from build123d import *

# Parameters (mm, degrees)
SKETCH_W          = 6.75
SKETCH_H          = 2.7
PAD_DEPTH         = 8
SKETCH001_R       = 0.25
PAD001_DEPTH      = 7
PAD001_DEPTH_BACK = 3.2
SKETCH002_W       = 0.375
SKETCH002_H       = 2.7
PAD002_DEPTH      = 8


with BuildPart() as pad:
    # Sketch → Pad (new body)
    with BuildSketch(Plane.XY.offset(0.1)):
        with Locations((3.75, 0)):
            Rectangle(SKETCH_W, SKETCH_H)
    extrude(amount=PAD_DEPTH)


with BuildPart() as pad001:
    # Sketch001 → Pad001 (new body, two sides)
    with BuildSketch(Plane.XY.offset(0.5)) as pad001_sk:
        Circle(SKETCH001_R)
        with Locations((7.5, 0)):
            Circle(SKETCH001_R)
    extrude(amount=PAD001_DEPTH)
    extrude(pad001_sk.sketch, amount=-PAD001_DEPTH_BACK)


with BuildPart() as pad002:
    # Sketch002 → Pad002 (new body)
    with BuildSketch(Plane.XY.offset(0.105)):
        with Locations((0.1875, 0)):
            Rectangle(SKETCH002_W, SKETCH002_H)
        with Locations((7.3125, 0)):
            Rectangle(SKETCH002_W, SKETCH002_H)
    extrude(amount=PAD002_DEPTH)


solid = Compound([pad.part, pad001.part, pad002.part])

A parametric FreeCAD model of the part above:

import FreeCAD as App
import Part
import Sketcher

doc = App.newDocument("Part")
params = doc.addObject("Spreadsheet::Sheet", "Params")
for row, (alias, value) in enumerate([
    ("sketch1_height", "2.7 mm"),
    ("sketch1_width", "6.75 mm"),
    ("pad1_length", "8 mm"),
    ("sketch2_diameter", "0.5 mm"),
    ("pad2_length", "7 mm"),
    ("pad2_length2", "3.2 mm"),
    ("sketch3_height", "2.7 mm"),
    ("pad3_length", "8 mm"),
], start=1):
    params.set(f"A{row}", alias)
    params.set(f"B{row}", "=" + value)
    params.setAlias(f"B{row}", alias)

body = doc.addObject("PartDesign::Body", "Body")

sketch1 = body.newObject("Sketcher::SketchObject", "Sketch")
sketch1.AttachmentSupport = (doc.getObject("XY_Plane"), [""])
sketch1.MapMode = "FlatFace"
sketch1.AttachmentOffset = App.Placement(App.Vector(0, 0, 0.1), App.Rotation())
sketch1.addGeometry([
    Part.LineSegment(App.Vector(0.4, 1.4, 0), App.Vector(0.4, -1.4, 0)),
    Part.LineSegment(App.Vector(0.4, -1.4, 0), App.Vector(7.1, -1.4, 0)),
    Part.LineSegment(App.Vector(7.1, -1.4, 0), App.Vector(7.1, 1.4, 0)),
    Part.LineSegment(App.Vector(7.1, 1.4, 0), App.Vector(0.4, 1.4, 0)),
], False)
sketch1.addConstraint([
    Sketcher.Constraint("Coincident", 0, 2, 1, 1),
    Sketcher.Constraint("Coincident", 1, 2, 2, 1),
    Sketcher.Constraint("Coincident", 2, 2, 3, 1),
    Sketcher.Constraint("Coincident", 3, 2, 0, 1),
    Sketcher.Constraint("Vertical", 0),
    Sketcher.Constraint("Horizontal", 1),
    Sketcher.Constraint("Vertical", 2),
    Sketcher.Constraint("Horizontal", 3),
    Sketcher.Constraint("DistanceY", 0, 2, 0, 1, 2.7),
    Sketcher.Constraint("DistanceX", 1, 1, 1, 2, 6.75),
    Sketcher.Constraint("DistanceY", 0, 2, -1, 1, 1.35),
    Sketcher.Constraint("DistanceX", -1, 1, 0, 2, 0.375),
])
sketch1.setExpression("Constraints[8]", "Params.sketch1_height")
sketch1.setExpression("Constraints[9]", "Params.sketch1_width")
pad1 = body.newObject("PartDesign::Pad", "Pad")
pad1.Profile = sketch1
pad1.setExpression("Length", "Params.pad1_length")
body2 = doc.addObject("PartDesign::Body", "Body001")
body2.AllowCompound = True

sketch2 = body2.newObject("Sketcher::SketchObject", "Sketch001")
sketch2.AttachmentSupport = (doc.getObject("XY_Plane001"), [""])
sketch2.MapMode = "FlatFace"
sketch2.AttachmentOffset = App.Placement(App.Vector(0, 0, 0.5), App.Rotation())
sketch2.addGeometry([
    Part.Circle(App.Vector(0, 0, 0), App.Vector(0, 0, 1), 0.25),
    Part.Circle(App.Vector(7.5, 0, 0), App.Vector(0, 0, 1), 0.25),
], False)
sketch2.addConstraint([
    Sketcher.Constraint("Coincident", 0, 3, -1, 1),
    Sketcher.Constraint("Equal", 0, 1),
    Sketcher.Constraint("PointOnObject", 1, 3, -1),
    Sketcher.Constraint("Diameter", 0, 0.5),
    Sketcher.Constraint("DistanceX", -1, 1, 1, 3, 7.5),
])
sketch2.setExpression("Constraints[3]", "Params.sketch2_diameter")
pad2 = body2.newObject("PartDesign::Pad", "Pad001")
pad2.Profile = sketch2
pad2.Type = "TwoLengths"
pad2.setExpression("Length", "Params.pad2_length")
pad2.setExpression("Length2", "Params.pad2_length2")
body3 = doc.addObject("PartDesign::Body", "Body002")
body3.AllowCompound = True

sketch3 = body3.newObject("Sketcher::SketchObject", "Sketch002")
sketch3.AttachmentSupport = (doc.getObject("XY_Plane002"), [""])
sketch3.MapMode = "FlatFace"
sketch3.AttachmentOffset = App.Placement(App.Vector(0, 0, 0.105), App.Rotation())
sketch3.addGeometry([
    Part.LineSegment(App.Vector(0, 1.35, 0), App.Vector(0, -1.35, 0)),
    Part.LineSegment(App.Vector(0, -1.35, 0), App.Vector(0.38, -1.35, 0)),
    Part.LineSegment(App.Vector(0.38, -1.35, 0), App.Vector(0.38, 1.35, 0)),
    Part.LineSegment(App.Vector(0.38, 1.35, 0), App.Vector(0, 1.35, 0)),
    Part.LineSegment(App.Vector(7.12, 1.35, 0), App.Vector(7.12, -1.35, 0)),
    Part.LineSegment(App.Vector(7.12, -1.35, 0), App.Vector(7.5, -1.35, 0)),
    Part.LineSegment(App.Vector(7.5, -1.35, 0), App.Vector(7.5, 1.35, 0)),
    Part.LineSegment(App.Vector(7.5, 1.35, 0), App.Vector(7.12, 1.35, 0)),
], False)
sketch3.addConstraint([
    Sketcher.Constraint("Coincident", 0, 2, 1, 1),
    Sketcher.Constraint("Coincident", 1, 2, 2, 1),
    Sketcher.Constraint("Coincident", 2, 2, 3, 1),
    Sketcher.Constraint("Coincident", 3, 2, 0, 1),
    Sketcher.Constraint("Coincident", 4, 2, 5, 1),
    Sketcher.Constraint("Coincident", 5, 2, 6, 1),
    Sketcher.Constraint("Coincident", 6, 2, 7, 1),
    Sketcher.Constraint("Coincident", 7, 2, 4, 1),
    Sketcher.Constraint("Vertical", 0),
    Sketcher.Constraint("Horizontal", 1),
    Sketcher.Constraint("Vertical", 2),
    Sketcher.Constraint("Horizontal", 3),
    Sketcher.Constraint("Vertical", 4),
    Sketcher.Constraint("Horizontal", 5),
    Sketcher.Constraint("Vertical", 6),
    Sketcher.Constraint("Horizontal", 7),
    Sketcher.Constraint("Symmetric", 0, 2, 3, 2, -1, 1),
    Sketcher.Constraint("Horizontal", 1, 2, 4, 2),
    Sketcher.Constraint("Horizontal", 3, 2, 6, 2),
    Sketcher.Constraint("Equal", 3, 5),
    Sketcher.Constraint("DistanceY", 0, 2, 0, 1, 2.7),
    Sketcher.Constraint("DistanceX", -1, 1, 5, 2, 7.5),
    Sketcher.Constraint("DistanceX", 1, 1, 1, 2, 0.375),
])
sketch3.setExpression("Constraints[20]", "Params.sketch3_height")
pad3 = body3.newObject("PartDesign::Pad", "Pad002")
pad3.Profile = sketch3
pad3.setExpression("Length", "Params.pad3_length")

doc.recompute()
